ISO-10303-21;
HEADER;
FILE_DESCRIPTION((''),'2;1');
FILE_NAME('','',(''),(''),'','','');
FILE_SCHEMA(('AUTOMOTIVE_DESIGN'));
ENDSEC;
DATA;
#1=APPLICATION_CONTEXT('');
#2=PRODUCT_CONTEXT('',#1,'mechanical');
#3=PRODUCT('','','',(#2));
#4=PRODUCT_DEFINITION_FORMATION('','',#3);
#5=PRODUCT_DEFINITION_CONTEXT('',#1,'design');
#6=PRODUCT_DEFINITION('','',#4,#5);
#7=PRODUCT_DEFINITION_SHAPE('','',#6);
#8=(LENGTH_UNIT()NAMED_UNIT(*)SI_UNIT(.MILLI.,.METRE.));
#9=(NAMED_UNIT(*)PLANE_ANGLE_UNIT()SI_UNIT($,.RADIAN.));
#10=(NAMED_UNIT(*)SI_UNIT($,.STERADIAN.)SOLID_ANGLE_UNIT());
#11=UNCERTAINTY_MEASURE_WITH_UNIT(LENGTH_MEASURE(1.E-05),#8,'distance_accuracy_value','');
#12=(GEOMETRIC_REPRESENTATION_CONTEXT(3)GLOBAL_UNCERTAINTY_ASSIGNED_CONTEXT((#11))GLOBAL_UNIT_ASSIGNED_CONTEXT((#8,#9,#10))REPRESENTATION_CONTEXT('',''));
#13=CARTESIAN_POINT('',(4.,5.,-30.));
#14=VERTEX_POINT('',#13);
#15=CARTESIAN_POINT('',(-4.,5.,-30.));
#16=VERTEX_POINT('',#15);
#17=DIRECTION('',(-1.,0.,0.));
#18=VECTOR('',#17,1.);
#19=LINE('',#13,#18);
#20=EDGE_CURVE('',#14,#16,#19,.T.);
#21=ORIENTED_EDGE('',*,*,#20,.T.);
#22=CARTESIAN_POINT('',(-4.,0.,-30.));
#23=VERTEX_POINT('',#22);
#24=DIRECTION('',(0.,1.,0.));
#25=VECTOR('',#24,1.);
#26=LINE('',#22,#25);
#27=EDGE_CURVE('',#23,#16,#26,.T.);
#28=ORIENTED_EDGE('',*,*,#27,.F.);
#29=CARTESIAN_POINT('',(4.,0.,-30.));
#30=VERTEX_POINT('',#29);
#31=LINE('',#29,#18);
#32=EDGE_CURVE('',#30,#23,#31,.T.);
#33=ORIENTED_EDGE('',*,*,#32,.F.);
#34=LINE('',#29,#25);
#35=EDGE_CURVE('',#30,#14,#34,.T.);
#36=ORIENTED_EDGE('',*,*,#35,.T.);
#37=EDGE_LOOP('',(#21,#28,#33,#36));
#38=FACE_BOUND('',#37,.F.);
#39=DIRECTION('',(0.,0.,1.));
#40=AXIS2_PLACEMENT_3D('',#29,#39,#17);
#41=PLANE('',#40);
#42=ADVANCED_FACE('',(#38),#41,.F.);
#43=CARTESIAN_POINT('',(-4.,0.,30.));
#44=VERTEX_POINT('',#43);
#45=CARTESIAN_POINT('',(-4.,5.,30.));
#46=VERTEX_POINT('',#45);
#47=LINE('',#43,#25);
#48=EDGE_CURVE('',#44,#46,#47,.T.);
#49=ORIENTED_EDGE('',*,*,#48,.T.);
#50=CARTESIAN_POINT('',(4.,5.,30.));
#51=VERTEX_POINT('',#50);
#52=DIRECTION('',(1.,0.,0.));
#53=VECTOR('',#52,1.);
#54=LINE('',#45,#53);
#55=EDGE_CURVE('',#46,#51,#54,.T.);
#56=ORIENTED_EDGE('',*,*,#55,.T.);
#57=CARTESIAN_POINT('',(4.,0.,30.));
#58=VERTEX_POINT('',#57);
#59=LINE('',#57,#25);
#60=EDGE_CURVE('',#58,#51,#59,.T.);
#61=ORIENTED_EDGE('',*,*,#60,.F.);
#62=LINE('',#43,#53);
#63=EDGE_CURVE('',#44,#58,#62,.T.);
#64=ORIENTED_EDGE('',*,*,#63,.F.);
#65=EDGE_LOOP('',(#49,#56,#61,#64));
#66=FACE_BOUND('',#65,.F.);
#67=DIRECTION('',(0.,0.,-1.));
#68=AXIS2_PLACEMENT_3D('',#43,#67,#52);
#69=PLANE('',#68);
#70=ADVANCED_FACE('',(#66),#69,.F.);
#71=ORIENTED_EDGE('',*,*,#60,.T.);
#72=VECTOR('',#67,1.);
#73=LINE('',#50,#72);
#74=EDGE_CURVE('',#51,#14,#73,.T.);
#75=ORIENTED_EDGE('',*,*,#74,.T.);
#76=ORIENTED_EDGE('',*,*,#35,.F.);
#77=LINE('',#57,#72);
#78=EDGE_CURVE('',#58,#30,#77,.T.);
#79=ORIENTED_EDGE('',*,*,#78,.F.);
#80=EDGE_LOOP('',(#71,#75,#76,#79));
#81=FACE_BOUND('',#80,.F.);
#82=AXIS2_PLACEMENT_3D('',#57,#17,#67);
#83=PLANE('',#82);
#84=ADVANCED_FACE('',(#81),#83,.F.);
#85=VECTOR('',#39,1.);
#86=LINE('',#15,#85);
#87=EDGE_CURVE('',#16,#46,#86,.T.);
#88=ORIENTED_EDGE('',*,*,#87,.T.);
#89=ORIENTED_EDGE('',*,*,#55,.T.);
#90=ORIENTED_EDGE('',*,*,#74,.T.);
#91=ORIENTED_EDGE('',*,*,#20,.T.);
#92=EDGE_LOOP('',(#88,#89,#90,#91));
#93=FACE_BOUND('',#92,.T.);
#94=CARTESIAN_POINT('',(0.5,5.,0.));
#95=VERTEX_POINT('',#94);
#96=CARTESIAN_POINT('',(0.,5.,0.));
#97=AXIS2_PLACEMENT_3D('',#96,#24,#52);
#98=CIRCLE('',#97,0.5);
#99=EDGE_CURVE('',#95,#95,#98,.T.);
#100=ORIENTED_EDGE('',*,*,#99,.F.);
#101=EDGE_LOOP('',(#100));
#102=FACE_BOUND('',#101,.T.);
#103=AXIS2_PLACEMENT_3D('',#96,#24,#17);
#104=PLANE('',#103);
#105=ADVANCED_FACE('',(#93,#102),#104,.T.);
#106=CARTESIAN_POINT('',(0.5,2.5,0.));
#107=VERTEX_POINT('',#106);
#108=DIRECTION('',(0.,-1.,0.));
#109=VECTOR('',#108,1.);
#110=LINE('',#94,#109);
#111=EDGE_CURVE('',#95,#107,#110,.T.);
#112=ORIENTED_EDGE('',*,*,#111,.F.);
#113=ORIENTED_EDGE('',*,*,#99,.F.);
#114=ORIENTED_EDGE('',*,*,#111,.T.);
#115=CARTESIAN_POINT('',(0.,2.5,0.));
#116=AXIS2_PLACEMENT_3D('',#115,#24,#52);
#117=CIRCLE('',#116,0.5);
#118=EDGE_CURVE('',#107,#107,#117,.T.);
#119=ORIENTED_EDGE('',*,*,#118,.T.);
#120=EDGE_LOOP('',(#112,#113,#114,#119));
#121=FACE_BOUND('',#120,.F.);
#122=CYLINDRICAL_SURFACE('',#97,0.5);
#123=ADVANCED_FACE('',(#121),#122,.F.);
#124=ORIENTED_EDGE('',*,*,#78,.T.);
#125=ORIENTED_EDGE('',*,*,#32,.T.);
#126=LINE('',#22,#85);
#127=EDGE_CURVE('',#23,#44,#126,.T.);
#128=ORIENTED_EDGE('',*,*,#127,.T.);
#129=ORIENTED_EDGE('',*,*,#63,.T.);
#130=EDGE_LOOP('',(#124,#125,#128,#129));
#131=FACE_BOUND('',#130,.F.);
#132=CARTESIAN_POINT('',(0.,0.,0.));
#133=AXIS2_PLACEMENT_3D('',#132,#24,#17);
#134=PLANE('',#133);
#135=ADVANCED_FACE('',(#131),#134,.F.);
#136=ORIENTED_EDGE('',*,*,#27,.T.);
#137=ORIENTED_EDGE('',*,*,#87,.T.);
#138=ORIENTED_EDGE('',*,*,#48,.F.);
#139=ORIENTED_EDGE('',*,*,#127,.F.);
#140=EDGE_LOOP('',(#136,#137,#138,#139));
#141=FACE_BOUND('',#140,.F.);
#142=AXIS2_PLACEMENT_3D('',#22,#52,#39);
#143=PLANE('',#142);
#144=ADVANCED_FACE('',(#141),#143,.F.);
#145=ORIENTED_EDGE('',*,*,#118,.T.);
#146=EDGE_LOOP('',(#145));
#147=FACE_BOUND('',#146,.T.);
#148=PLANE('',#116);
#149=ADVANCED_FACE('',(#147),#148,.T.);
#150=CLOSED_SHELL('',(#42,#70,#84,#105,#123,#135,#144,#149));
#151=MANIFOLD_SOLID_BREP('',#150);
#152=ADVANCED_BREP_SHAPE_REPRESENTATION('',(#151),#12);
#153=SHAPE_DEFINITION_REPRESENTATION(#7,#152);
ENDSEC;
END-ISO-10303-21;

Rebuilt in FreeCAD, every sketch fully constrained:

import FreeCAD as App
import Part
import Sketcher

V = App.Vector
Q = App.Units.Quantity

doc = App.newDocument("Part")
body = doc.addObject("PartDesign::Body", "Body")

# Sketch on XZ plane
sketch1 = body.newObject("Sketcher::SketchObject", "Sketch")
sketch1.AttachmentSupport = (doc.getObject("XZ_Plane"), [""])
sketch1.MapMode = "FlatFace"
sketch1.addGeometry([
    Part.LineSegment(V(-4, -30, 0), V(-4, 30, 0)),
    Part.LineSegment(V(-4, 30, 0), V(4, 30, 0)),
    Part.LineSegment(V(4, 30, 0), V(4, -30, 0)),
    Part.LineSegment(V(4, -30, 0), V(-4, -30, 0)),
], False)
sketch1.addConstraint([
    Sketcher.Constraint("Coincident", 0, 2, 1, 1),
    Sketcher.Constraint("Coincident", 1, 2, 2, 1),
    Sketcher.Constraint("Coincident", 2, 2, 3, 1),
    Sketcher.Constraint("Coincident", 3, 2, 0, 1),
    Sketcher.Constraint("Vertical", 0),
    Sketcher.Constraint("Horizontal", 1),
    Sketcher.Constraint("Vertical", 2),
    Sketcher.Constraint("Horizontal", 3),
    Sketcher.Constraint("Symmetric", 0, 2, 2, 2, -1, 1),
    Sketcher.Constraint("DistanceX", 1, 1, 1, 2, Q("8 mm")),
    Sketcher.Constraint("DistanceY", 0, 1, 0, 2, Q("60 mm")),
])
pad1 = body.newObject("PartDesign::Pad", "Pad")
pad1.Profile = sketch1
pad1.Length = 5
pad1.Reversed = True

# Sketch on XZ plane
sketch2 = body.newObject("Sketcher::SketchObject", "Sketch001")
sketch2.AttachmentSupport = (doc.getObject("XZ_Plane"), [""])
sketch2.MapMode = "FlatFace"
sketch2.AttachmentOffset = App.Placement(V(0, 0, -5), App.Rotation())
sketch2.addGeometry(Part.Circle(V(0, 0, 0), V(0, 0, 1), 0.5), False)
sketch2.addConstraint([
    Sketcher.Constraint("Coincident", 0, 3, -1, 1),
    Sketcher.Constraint("Diameter", 0, Q("1 mm")),
])
pocket1 = body.newObject("PartDesign::Pocket", "Pocket")
pocket1.Profile = sketch2
pocket1.Length = 2.5
pocket1.Reversed = True

doc.recompute()
